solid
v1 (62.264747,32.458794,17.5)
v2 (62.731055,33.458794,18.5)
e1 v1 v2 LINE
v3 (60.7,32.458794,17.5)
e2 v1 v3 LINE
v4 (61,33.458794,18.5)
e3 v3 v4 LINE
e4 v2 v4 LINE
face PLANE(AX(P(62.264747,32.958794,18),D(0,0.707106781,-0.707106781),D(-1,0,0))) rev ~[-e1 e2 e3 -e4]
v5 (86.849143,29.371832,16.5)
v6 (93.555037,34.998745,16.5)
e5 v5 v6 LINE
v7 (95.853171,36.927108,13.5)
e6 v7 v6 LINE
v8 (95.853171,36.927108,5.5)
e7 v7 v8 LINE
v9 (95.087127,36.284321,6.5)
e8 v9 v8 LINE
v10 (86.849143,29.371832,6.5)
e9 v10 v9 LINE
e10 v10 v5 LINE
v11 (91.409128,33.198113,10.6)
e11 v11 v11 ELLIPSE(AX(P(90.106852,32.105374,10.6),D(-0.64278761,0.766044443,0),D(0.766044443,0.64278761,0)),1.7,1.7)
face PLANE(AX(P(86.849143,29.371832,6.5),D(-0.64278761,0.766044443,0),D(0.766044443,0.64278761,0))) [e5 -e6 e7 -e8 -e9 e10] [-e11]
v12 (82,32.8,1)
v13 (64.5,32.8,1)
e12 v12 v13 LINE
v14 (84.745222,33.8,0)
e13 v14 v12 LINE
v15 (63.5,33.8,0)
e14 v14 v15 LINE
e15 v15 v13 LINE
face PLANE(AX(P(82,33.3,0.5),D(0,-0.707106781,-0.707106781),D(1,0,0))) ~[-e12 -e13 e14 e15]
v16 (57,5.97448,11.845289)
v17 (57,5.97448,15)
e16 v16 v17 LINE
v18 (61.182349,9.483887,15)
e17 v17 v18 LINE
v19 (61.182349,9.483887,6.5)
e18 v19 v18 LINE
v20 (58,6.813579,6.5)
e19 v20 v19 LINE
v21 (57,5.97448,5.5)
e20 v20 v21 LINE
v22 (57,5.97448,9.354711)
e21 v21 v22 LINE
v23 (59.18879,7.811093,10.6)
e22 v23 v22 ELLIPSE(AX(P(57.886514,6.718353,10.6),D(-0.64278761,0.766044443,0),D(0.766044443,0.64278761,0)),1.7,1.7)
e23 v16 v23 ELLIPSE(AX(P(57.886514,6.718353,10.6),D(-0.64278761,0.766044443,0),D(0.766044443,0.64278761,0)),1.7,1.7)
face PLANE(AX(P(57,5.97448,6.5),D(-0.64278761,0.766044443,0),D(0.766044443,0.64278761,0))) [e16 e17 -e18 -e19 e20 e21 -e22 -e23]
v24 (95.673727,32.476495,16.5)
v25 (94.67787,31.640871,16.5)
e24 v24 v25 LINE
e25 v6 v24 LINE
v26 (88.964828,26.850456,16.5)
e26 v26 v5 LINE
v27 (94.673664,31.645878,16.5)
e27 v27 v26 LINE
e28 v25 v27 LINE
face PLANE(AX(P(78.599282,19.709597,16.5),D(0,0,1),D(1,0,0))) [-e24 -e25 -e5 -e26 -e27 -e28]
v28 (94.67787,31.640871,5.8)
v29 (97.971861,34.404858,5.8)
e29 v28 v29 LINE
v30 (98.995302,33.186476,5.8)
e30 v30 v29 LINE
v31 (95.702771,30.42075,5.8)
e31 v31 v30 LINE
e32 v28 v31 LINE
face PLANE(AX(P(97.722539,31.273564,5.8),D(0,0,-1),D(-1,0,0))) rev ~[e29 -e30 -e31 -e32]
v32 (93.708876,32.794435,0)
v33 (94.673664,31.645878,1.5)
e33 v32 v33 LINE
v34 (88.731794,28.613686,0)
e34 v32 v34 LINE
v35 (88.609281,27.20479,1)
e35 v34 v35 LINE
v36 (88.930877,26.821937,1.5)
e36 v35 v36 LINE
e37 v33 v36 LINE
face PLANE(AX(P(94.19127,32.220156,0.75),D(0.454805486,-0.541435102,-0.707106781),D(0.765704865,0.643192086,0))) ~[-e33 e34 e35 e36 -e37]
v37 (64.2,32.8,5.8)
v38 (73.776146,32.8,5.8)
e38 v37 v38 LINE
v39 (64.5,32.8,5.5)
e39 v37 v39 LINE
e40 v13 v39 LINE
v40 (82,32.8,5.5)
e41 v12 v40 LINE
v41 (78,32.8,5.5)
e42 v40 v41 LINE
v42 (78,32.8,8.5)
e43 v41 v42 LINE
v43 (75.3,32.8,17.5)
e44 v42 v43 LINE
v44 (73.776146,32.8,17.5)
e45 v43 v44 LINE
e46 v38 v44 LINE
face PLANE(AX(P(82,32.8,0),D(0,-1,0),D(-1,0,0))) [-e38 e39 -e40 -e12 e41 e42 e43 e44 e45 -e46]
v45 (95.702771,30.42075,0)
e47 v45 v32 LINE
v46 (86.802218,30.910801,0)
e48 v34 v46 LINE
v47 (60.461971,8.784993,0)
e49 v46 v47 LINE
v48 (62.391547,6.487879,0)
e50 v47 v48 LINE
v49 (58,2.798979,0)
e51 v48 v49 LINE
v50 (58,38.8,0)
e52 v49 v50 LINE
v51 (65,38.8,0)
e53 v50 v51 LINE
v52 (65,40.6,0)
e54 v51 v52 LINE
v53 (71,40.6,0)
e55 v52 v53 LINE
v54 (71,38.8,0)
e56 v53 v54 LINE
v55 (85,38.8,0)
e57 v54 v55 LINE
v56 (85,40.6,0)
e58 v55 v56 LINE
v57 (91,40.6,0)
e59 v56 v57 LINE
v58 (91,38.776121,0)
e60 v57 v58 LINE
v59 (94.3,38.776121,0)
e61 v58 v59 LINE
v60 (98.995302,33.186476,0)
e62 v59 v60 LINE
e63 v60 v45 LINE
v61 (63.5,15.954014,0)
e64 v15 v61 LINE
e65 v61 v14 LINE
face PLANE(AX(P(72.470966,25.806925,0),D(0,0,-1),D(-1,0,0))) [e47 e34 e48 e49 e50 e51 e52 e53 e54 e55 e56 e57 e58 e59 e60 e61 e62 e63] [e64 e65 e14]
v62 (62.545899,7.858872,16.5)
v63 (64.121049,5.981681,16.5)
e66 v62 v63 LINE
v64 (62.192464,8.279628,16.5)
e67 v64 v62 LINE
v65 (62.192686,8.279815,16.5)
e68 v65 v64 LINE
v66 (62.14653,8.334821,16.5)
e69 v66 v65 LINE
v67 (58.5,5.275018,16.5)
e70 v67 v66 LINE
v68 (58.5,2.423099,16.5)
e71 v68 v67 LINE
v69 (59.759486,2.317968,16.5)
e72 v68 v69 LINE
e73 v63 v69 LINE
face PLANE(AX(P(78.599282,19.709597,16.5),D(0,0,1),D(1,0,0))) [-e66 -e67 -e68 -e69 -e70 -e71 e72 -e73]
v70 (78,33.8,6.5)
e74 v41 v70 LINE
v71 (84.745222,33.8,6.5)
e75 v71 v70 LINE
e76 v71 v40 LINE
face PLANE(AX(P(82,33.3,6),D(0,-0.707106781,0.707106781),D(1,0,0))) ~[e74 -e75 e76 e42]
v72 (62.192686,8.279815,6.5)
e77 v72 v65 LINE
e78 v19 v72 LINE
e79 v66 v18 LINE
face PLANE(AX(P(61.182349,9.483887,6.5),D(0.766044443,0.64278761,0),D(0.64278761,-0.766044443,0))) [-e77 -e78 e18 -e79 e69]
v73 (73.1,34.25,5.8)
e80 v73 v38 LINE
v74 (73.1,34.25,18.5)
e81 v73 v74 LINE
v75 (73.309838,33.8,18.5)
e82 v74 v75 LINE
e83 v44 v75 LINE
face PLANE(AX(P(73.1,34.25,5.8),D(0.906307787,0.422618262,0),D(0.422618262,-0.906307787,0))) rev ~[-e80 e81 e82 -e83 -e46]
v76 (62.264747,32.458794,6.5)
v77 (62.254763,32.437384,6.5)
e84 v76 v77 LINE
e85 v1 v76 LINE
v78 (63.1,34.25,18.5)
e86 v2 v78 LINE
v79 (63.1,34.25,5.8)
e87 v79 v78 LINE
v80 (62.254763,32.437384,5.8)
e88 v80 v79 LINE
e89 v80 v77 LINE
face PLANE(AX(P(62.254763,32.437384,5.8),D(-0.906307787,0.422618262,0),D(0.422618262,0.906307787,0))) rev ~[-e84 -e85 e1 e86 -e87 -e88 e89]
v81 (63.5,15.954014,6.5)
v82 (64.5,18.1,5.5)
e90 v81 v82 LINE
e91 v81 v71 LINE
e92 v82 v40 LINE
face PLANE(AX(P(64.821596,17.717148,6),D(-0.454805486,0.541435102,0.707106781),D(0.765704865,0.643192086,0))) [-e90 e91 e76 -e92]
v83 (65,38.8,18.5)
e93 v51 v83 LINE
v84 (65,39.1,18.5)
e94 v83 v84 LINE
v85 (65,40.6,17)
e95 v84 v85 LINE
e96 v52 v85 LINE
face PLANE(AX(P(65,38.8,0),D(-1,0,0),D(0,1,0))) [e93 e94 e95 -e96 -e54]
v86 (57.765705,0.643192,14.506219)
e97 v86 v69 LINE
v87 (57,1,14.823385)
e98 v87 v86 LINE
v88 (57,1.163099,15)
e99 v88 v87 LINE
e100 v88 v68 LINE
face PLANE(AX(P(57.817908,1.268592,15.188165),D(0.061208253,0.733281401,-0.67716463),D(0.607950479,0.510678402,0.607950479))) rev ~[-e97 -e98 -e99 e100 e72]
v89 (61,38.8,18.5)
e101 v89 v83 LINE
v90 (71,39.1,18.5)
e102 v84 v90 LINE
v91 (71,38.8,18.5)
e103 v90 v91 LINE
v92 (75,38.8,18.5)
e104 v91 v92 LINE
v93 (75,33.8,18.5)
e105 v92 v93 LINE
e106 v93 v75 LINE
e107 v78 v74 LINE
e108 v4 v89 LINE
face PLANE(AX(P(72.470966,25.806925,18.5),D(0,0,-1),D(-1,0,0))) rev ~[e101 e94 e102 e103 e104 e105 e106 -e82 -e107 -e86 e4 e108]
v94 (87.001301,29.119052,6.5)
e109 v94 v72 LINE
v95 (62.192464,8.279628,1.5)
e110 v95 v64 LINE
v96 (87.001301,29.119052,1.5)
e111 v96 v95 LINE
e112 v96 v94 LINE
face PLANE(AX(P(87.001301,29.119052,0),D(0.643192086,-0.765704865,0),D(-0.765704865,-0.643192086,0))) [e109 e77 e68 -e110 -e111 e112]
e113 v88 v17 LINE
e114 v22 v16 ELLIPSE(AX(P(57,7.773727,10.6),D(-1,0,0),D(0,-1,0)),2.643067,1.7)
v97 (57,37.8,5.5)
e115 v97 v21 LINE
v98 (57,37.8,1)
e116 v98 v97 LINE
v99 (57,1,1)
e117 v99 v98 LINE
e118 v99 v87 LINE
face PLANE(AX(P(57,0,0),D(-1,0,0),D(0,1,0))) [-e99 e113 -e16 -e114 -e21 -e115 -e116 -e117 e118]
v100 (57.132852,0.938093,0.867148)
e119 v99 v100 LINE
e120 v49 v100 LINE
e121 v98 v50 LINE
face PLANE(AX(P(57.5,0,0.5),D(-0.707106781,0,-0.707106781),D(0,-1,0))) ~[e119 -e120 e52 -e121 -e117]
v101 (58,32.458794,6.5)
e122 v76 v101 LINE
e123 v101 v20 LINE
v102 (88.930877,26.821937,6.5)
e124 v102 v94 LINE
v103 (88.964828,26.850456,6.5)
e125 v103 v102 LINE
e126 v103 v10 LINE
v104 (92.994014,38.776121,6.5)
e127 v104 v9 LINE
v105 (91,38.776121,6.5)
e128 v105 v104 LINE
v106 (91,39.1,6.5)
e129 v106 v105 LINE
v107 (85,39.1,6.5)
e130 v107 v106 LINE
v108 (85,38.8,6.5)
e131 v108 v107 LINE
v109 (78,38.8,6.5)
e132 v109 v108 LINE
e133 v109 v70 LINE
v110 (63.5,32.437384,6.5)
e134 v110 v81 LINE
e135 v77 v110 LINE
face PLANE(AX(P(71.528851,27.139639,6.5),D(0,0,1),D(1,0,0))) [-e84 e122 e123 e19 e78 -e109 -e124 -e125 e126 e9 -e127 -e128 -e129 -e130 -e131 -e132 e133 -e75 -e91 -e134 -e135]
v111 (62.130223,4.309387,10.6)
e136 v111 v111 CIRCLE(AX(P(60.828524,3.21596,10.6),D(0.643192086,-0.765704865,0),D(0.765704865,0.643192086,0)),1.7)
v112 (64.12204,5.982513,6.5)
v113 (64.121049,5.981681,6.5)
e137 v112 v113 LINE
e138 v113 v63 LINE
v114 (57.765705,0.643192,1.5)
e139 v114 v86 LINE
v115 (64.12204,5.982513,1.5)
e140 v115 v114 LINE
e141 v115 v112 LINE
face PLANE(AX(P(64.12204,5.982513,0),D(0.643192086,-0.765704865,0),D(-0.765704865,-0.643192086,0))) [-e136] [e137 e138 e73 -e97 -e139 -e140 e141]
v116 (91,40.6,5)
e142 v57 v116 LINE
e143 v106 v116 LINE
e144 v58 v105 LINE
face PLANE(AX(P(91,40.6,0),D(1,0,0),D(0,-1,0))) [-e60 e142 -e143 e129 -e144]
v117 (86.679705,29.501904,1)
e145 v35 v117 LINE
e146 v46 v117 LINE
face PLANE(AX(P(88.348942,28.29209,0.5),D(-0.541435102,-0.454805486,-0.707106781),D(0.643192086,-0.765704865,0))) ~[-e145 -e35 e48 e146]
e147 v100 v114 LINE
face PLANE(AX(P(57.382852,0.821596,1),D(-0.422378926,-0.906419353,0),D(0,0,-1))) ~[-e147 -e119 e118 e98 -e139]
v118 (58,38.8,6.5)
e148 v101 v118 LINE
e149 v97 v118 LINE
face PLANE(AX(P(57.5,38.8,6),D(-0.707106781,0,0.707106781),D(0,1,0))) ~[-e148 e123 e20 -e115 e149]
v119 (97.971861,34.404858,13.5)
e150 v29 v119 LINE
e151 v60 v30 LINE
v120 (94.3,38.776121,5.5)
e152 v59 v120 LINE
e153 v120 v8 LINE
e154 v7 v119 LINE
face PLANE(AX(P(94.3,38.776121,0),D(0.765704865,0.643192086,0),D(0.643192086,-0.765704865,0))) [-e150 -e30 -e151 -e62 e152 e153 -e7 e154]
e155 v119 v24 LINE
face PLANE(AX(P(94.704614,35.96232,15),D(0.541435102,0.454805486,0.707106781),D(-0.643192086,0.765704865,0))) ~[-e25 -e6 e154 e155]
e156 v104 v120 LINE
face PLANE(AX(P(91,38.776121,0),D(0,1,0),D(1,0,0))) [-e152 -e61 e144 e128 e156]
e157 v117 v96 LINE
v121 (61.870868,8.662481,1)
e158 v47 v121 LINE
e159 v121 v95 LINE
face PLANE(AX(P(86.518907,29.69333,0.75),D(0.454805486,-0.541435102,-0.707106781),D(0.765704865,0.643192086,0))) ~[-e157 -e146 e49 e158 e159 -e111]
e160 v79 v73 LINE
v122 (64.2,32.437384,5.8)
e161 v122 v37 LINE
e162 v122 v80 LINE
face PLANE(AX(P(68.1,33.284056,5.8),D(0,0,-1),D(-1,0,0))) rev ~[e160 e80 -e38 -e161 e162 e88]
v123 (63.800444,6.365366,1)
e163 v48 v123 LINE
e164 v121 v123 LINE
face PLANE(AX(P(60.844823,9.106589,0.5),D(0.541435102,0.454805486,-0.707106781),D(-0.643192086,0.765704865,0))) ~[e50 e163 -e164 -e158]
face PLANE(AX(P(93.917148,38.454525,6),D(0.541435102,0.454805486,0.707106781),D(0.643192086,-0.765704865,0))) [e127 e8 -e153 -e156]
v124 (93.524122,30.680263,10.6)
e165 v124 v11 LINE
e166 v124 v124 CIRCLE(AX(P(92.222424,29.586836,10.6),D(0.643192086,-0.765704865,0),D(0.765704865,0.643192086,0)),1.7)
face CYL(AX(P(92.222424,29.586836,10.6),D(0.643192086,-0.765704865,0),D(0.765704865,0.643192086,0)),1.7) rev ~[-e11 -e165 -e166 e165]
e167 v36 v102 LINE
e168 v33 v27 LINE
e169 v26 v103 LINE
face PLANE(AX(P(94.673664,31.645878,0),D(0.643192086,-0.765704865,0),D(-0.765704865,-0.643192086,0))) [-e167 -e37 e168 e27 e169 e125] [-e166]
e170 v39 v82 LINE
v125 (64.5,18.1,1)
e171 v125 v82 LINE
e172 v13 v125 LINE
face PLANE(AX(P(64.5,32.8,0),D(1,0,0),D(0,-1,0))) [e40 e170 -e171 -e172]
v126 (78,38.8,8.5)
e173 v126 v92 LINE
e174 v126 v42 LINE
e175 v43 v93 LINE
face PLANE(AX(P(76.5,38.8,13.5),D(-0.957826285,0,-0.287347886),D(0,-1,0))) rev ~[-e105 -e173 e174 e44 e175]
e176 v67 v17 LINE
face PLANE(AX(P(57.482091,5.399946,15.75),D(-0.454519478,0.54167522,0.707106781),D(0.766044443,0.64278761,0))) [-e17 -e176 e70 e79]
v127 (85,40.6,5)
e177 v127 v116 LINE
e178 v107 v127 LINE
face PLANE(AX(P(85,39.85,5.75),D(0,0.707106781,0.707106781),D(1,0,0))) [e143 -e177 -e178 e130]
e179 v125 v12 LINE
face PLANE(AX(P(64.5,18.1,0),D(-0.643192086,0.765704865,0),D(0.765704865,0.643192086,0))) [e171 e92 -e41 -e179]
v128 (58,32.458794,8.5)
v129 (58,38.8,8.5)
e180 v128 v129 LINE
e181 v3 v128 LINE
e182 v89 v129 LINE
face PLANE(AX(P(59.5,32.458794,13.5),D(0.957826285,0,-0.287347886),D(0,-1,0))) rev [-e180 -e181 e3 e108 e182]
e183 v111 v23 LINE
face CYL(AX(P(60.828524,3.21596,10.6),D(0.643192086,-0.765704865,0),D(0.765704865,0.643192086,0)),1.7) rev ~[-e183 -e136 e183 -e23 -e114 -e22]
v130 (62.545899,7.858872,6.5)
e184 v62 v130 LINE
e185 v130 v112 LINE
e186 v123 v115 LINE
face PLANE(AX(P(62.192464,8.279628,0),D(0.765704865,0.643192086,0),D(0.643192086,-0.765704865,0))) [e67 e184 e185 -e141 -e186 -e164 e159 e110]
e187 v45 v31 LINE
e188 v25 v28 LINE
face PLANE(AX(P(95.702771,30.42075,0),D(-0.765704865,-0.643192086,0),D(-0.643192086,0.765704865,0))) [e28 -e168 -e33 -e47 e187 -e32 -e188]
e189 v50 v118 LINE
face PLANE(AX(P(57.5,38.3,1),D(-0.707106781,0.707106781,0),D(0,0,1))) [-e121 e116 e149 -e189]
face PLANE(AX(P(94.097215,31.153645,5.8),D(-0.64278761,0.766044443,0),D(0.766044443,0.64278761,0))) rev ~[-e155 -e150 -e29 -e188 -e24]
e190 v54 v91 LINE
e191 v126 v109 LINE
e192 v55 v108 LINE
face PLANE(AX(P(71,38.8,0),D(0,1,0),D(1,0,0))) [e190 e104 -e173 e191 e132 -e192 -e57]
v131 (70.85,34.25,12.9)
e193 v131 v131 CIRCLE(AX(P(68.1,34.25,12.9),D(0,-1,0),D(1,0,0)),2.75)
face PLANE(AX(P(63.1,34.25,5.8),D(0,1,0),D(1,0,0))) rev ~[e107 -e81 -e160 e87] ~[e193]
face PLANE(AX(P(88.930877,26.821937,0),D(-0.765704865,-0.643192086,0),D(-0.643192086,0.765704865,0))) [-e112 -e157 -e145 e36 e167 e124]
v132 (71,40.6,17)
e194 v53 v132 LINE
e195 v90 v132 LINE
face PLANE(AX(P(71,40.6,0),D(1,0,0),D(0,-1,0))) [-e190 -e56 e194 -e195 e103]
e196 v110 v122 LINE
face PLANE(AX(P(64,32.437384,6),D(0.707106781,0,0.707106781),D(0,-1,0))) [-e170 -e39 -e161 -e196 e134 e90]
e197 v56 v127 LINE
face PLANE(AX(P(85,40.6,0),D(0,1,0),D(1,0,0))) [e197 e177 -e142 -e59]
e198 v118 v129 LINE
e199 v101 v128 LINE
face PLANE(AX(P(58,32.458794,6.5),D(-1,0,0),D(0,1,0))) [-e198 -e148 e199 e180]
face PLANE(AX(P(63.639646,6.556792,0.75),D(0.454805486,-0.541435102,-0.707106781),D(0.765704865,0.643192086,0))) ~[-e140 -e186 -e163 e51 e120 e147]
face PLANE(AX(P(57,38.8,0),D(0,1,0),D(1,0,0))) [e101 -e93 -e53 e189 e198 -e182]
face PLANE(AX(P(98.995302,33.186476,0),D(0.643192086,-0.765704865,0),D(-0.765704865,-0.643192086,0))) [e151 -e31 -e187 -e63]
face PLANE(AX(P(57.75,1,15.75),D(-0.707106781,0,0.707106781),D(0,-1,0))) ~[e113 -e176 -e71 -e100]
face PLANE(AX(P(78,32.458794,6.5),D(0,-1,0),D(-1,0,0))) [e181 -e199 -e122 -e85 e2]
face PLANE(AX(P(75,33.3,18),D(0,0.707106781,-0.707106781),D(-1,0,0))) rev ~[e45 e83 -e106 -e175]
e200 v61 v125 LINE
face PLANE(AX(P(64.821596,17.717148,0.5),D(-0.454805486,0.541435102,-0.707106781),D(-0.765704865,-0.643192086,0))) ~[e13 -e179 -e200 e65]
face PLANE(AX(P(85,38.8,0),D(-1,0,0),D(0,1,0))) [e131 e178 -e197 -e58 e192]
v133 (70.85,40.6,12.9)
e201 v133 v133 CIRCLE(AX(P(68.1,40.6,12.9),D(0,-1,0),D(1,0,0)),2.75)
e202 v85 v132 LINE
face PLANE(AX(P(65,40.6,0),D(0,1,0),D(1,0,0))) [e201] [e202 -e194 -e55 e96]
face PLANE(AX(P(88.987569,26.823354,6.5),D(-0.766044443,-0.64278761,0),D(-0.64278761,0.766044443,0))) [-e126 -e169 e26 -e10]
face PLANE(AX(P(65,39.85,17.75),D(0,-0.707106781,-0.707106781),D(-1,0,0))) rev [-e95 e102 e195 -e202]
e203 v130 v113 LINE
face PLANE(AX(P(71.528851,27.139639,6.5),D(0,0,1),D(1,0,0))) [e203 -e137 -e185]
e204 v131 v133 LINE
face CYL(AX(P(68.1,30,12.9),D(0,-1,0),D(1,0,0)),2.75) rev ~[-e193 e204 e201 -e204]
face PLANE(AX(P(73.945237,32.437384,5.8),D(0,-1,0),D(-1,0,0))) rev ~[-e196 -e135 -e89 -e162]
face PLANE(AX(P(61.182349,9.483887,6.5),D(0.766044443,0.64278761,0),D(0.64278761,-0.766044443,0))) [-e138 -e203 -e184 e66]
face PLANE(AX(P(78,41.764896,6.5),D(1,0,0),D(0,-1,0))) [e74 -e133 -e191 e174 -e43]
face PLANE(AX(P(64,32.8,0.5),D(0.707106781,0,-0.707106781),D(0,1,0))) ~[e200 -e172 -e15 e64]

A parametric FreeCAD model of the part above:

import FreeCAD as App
import Part
import Sketcher
Q = App.Units.Quantity


def edges_at(feature, points):
    """Names of the edges that pass closest to the given points."""
    edges = feature.Shape.Edges
    near = lambda p: min(range(len(edges)), key=lambda i: edges[i].distToShape(Part.Vertex(*p))[0])
    return sorted({f"Edge{near(p) + 1}" for p in points})

doc = App.newDocument("Part")
body = doc.addObject("PartDesign::Body", "Body")

# Sketch on XY plane
sketch1 = doc.addObject("Sketcher::SketchObject", "Sketch")
body.addObject(sketch1)
sketch1.AttachmentSupport = (doc.XY_Plane, [""])
sketch1.MapMode = "FlatFace"
sketch1.addGeometry(Part.LineSegment(App.Vector(8, 38.8, 0), App.Vector(0, 38.8, 0)), False)
sketch1.addGeometry(Part.LineSegment(App.Vector(0, 38.8, 0), App.Vector(0, 0, 0)), False)
sketch1.addGeometry(Part.LineSegment(App.Vector(0, 0, 0), App.Vector(7.1, 6, 0)), False)
sketch1.addGeometry(Part.LineSegment(App.Vector(7.1, 6, 0), App.Vector(5.2, 8.3, 0)), False)
sketch1.addGeometry(Part.LineSegment(App.Vector(5.2, 8.3, 0), App.Vector(30, 29.1, 0)), False)
sketch1.addGeometry(Part.LineSegment(App.Vector(30, 29.1, 0), App.Vector(31.9, 26.8, 0)), False)
sketch1.addGeometry(Part.LineSegment(App.Vector(31.9, 26.8, 0), App.Vector(37.7, 31.6, 0)), False)
sketch1.addGeometry(Part.LineSegment(App.Vector(37.7, 31.6, 0), App.Vector(38.7, 30.4, 0)), False)
sketch1.addGeometry(Part.LineSegment(App.Vector(38.7, 30.4, 0), App.Vector(42, 33.2, 0)), False)
sketch1.addGeometry(Part.LineSegment(App.Vector(42, 33.2, 0), App.Vector(37.3, 38.8, 0)), False)
sketch1.addGeometry(Part.LineSegment(App.Vector(37.3, 38.8, 0), App.Vector(34, 38.8, 0)), False)
sketch1.addGeometry(Part.LineSegment(App.Vector(34, 38.8, 0), App.Vector(34, 40.6, 0)), False)
sketch1.addGeometry(Part.LineSegment(App.Vector(34, 40.6, 0), App.Vector(28, 40.6, 0)), False)
sketch1.addGeometry(Part.LineSegment(App.Vector(28, 40.6, 0), App.Vector(28, 38.8, 0)), False)
sketch1.addGeometry(Part.LineSegment(App.Vector(28, 38.8, 0), App.Vector(14, 38.8, 0)), False)
sketch1.addGeometry(Part.LineSegment(App.Vector(14, 38.8, 0), App.Vector(14, 40.6, 0)), False)
sketch1.addGeometry(Part.LineSegment(App.Vector(14, 40.6, 0), App.Vector(8, 40.6, 0)), False)
sketch1.addGeometry(Part.LineSegment(App.Vector(8, 40.6, 0), App.Vector(8, 38.8, 0)), False)
sketch1.addGeometry(Part.LineSegment(App.Vector(7.5, 32.8, 0), App.Vector(25, 32.8, 0)), False)
sketch1.addGeometry(Part.LineSegment(App.Vector(25, 32.8, 0), App.Vector(7.5, 18.1, 0)), False)
sketch1.addGeometry(Part.LineSegment(App.Vector(7.5, 18.1, 0), App.Vector(7.5, 32.8, 0)), False)
sketch1.addConstraint(Sketcher.Constraint("Coincident", 0, 2, 1, 1))
sketch1.addConstraint(Sketcher.Constraint("Coincident", 1, 2, 2, 1))
sketch1.addConstraint(Sketcher.Constraint("Coincident", 2, 2, 3, 1))
sketch1.addConstraint(Sketcher.Constraint("Coincident", 3, 2, 4, 1))
sketch1.addConstraint(Sketcher.Constraint("Coincident", 4, 2, 5, 1))
sketch1.addConstraint(Sketcher.Constraint("Coincident", 5, 2, 6, 1))
sketch1.addConstraint(Sketcher.Constraint("Coincident", 6, 2, 7, 1))
sketch1.addConstraint(Sketcher.Constraint("Coincident", 7, 2, 8, 1))
sketch1.addConstraint(Sketcher.Constraint("Coincident", 8, 2, 9, 1))
sketch1.addConstraint(Sketcher.Constraint("Coincident", 9, 2, 10, 1))
sketch1.addConstraint(Sketcher.Constraint("Coincident", 10, 2, 11, 1))
sketch1.addConstraint(Sketcher.Constraint("Coincident", 11, 2, 12, 1))
sketch1.addConstraint(Sketcher.Constraint("Coincident", 12, 2, 13, 1))
sketch1.addConstraint(Sketcher.Constraint("Coincident", 13, 2, 14, 1))
sketch1.addConstraint(Sketcher.Constraint("Coincident", 14, 2, 15, 1))
sketch1.addConstraint(Sketcher.Constraint("Coincident", 15, 2, 16, 1))
sketch1.addConstraint(Sketcher.Constraint("Coincident", 16, 2, 17, 1))
sketch1.addConstraint(Sketcher.Constraint("Coincident", 17, 2, 0, 1))
sketch1.addConstraint(Sketcher.Constraint("Coincident", 18, 2, 19, 1))
sketch1.addConstraint(Sketcher.Constraint("Coincident", 19, 2, 20, 1))
sketch1.addConstraint(Sketcher.Constraint("Coincident", 20, 2, 18, 1))
sketch1.addConstraint(Sketcher.Constraint("Horizontal", 0))
sketch1.addConstraint(Sketcher.Constraint("Vertical", 1))
sketch1.addConstraint(Sketcher.Constraint("Horizontal", 10))
sketch1.addConstraint(Sketcher.Constraint("Vertical", 11))
sketch1.addConstraint(Sketcher.Constraint("Horizontal", 12))
sketch1.addConstraint(Sketcher.Constraint("Vertical", 13))
sketch1.addConstraint(Sketcher.Constraint("Horizontal", 14))
sketch1.addConstraint(Sketcher.Constraint("Vertical", 15))
sketch1.addConstraint(Sketcher.Constraint("Horizontal", 16))
sketch1.addConstraint(Sketcher.Constraint("Vertical", 17))
sketch1.addConstraint(Sketcher.Constraint("Horizontal", 18))
sketch1.addConstraint(Sketcher.Constraint("Vertical", 20))
sketch1.addConstraint(Sketcher.Constraint("Coincident", 1, 2, -1, 1))
sketch1.addConstraint(Sketcher.Constraint("Perpendicular", 2, 3))
sketch1.addConstraint(Sketcher.Constraint("Perpendicular", 3, 4))
sketch1.addConstraint(Sketcher.Constraint("Perpendicular", 4, 5))
sketch1.addConstraint(Sketcher.Constraint("Perpendicular", 5, 6))
sketch1.addConstraint(Sketcher.Constraint("Perpendicular", 6, 7))
sketch1.addConstraint(Sketcher.Constraint("Perpendicular", 7, 8))
sketch1.addConstraint(Sketcher.Constraint("Perpendicular", 8, 9))
sketch1.addConstraint(Sketcher.Constraint("Perpendicular", 9, 19))
sketch1.addConstraint(Sketcher.Constraint("Horizontal", 0, 2, 13, 2))
sketch1.addConstraint(Sketcher.Constraint("Horizontal", 12, 2, 15, 2))
sketch1.addConstraint(Sketcher.Constraint("Equal", 12, 16))
sketch1.addConstraint(Sketcher.Constraint("Equal", 3, 5))
sketch1.addConstraint(Sketcher.Constraint("DistanceX", 0, 2, 0, 1, Q("8 mm")))
sketch1.addConstraint(Sketcher.Constraint("DistanceX", 12, 2, 12, 1, Q("6 mm")))
sketch1.addConstraint(Sketcher.Constraint("DistanceX", 14, 2, 14, 1, Q("14 mm")))
sketch1.addConstraint(Sketcher.Constraint("Distance", 3, Q("3 mm")))
sketch1.addConstraint(Sketcher.Constraint("DistanceX", 10, 2, 10, 1, Q("3.3 mm")))
sketch1.addConstraint(Sketcher.Constraint("DistanceX", 18, 1, 18, 2, Q("17.5 mm")))
sketch1.addConstraint(Sketcher.Constraint("DistanceY", 1, 2, 1, 1, Q("38.8 mm")))
sketch1.addConstraint(Sketcher.Constraint("DistanceY", 13, 2, 13, 1, Q("1.8 mm")))
sketch1.addConstraint(Sketcher.Constraint("DistanceY", 20, 1, 20, 2, Q("14.7 mm")))
sketch1.addConstraint(Sketcher.Constraint("DistanceX", -1, 1, 18, 2, Q("25 mm")))
sketch1.addConstraint(Sketcher.Constraint("DistanceY", 18, 2, 13, 2, Q("6 mm")))
sketch1.addConstraint(Sketcher.Constraint("Distance", 4, Q("32.4 mm")))
sketch1.addConstraint(Sketcher.Constraint("Distance", 6, Q("7.5 mm")))
sketch1.addConstraint(Sketcher.Constraint("Distance", 7, Q("1.6 mm")))
sketch1.addConstraint(Sketcher.Constraint("Distance", 8, Q("4.3 mm")))
sketch1.addConstraint(Sketcher.Constraint("Distance", 9, Q("7.3 mm")))
pad1 = doc.addObject("PartDesign::Pad", "Pad")
body.addObject(pad1)
pad1.Profile = sketch1
pad1.Length = 18.5

# Sketch on XY plane
sketch2 = doc.addObject("Sketcher::SketchObject", "Sketch001")
body.addObject(sketch2)
sketch2.AttachmentSupport = (doc.XY_Plane, [""])
sketch2.MapMode = "FlatFace"
sketch2.AttachmentOffset = App.Placement(App.Vector(0, 0, 6.5), App.Rotation())
sketch2.addGeometry(Part.LineSegment(App.Vector(0, 6, 0), App.Vector(4.2, 9.5, 0)), False)
sketch2.addGeometry(Part.LineSegment(App.Vector(4.2, 9.5, 0), App.Vector(7.1, 6, 0)), False)
sketch2.addGeometry(Part.LineSegment(App.Vector(7.1, 6, 0), App.Vector(32, 26.8, 0)), False)
sketch2.addGeometry(Part.LineSegment(App.Vector(32, 26.8, 0), App.Vector(29.8, 29.4, 0)), False)
sketch2.addGeometry(Part.LineSegment(App.Vector(29.8, 29.4, 0), App.Vector(38.9, 37, 0)), False)
sketch2.addGeometry(Part.LineSegment(App.Vector(38.9, 37, 0), App.Vector(34.9, 41.8, 0)), False)
sketch2.addGeometry(Part.LineSegment(App.Vector(34.9, 41.8, 0), App.Vector(21, 41.8, 0)), False)
sketch2.addGeometry(Part.LineSegment(App.Vector(21, 41.8, 0), App.Vector(21, 32.5, 0)), False)
sketch2.addGeometry(Part.LineSegment(App.Vector(21, 32.5, 0), App.Vector(1, 32.5, 0)), False)
sketch2.addGeometry(Part.LineSegment(App.Vector(1, 32.5, 0), App.Vector(1, 41.8, 0)), False)
sketch2.addGeometry(Part.LineSegment(App.Vector(1, 41.8, 0), App.Vector(0, 41.8, 0)), False)
sketch2.addGeometry(Part.LineSegment(App.Vector(0, 41.8, 0), App.Vector(0, 6, 0)), False)
sketch2.addConstraint(Sketcher.Constraint("Coincident", 0, 2, 1, 1))
sketch2.addConstraint(Sketcher.Constraint("Coincident", 1, 2, 2, 1))
sketch2.addConstraint(Sketcher.Constraint("Coincident", 2, 2, 3, 1))
sketch2.addConstraint(Sketcher.Constraint("Coincident", 3, 2, 4, 1))
sketch2.addConstraint(Sketcher.Constraint("Coincident", 4, 2, 5, 1))
sketch2.addConstraint(Sketcher.Constraint("Coincident", 5, 2, 6, 1))
sketch2.addConstraint(Sketcher.Constraint("Coincident", 6, 2, 7, 1))
sketch2.addConstraint(Sketcher.Constraint("Coincident", 7, 2, 8, 1))
sketch2.addConstraint(Sketcher.Constraint("Coincident", 8, 2, 9, 1))
sketch2.addConstraint(Sketcher.Constraint("Coincident", 9, 2, 10, 1))
sketch2.addConstraint(Sketcher.Constraint("Coincident", 10, 2, 11, 1))
sketch2.addConstraint(Sketcher.Constraint("Coincident", 11, 2, 0, 1))
sketch2.addConstraint(Sketcher.Constraint("Horizontal", 6))
sketch2.addConstraint(Sketcher.Constraint("Vertical", 7))
sketch2.addConstraint(Sketcher.Constraint("Horizontal", 8))
sketch2.addConstraint(Sketcher.Constraint("Vertical", 9))
sketch2.addConstraint(Sketcher.Constraint("Vertical", 11))
sketch2.addConstraint(Sketcher.Constraint("PointOnObject", 10, 2, -2))
sketch2.addConstraint(Sketcher.Constraint("Perpendicular", 0, 1))
sketch2.addConstraint(Sketcher.Constraint("Perpendicular", 1, 2))
sketch2.addConstraint(Sketcher.Constraint("Perpendicular", 2, 3))
sketch2.addConstraint(Sketcher.Constraint("Perpendicular", 3, 4))
sketch2.addConstraint(Sketcher.Constraint("Perpendicular", 4, 5))
sketch2.addConstraint(Sketcher.Constraint("Horizontal", 6, 2, 10, 2))
sketch2.addConstraint(Sketcher.Constraint("DistanceX", 8, 2, 8, 1, Q("20 mm")))
sketch2.addConstraint(Sketcher.Constraint("Angle", 0, Q("40 deg")))
sketch2.addConstraint(Sketcher.Constraint("DistanceX", -1, 1, 6, 2, Q("21 mm")))
sketch2.addConstraint(Sketcher.Constraint("DistanceY", 7, 2, 7, 1, Q("9.306102 mm")))
sketch2.addConstraint(Sketcher.Constraint("Distance", 3, Q("3.326801 mm")))
sketch2.addConstraint(Sketcher.Constraint("DistanceX", 1, 2, 5, 2, Q("27.758201 mm")))
sketch2.addConstraint(Sketcher.Constraint("Distance", 0, Q("5.459669 mm")))
sketch2.addConstraint(Sketcher.Constraint("Distance", 1, Q("4.590048 mm")))
sketch2.addConstraint(Sketcher.Constraint("Distance", 2, Q("32.445629 mm")))
sketch2.addConstraint(Sketcher.Constraint("Distance", 5, Q("6.25281 mm")))
sketch2.addConstraint(Sketcher.Constraint("DistanceY", 9, 1, 9, 2, Q("9.300464 mm")))
sketch2.addConstraint(Sketcher.Constraint("DistanceY", -1, 1, 3, 2, Q("29.371832 mm")))
pocket1 = doc.addObject("PartDesign::Pocket", "Pocket")
body.addObject(pocket1)
pocket1.Profile = sketch2
pocket1.Length = 13
pocket1.Reversed = True

# Sketch on XY plane
sketch3 = doc.addObject("Sketcher::SketchObject", "Sketch002")
body.addObject(sketch3)
sketch3.AttachmentSupport = (doc.XY_Plane, [""])
sketch3.MapMode = "FlatFace"
sketch3.AttachmentOffset = App.Placement(App.Vector(0, 0, 16.5), App.Rotation())
sketch3.addGeometry(Part.LineSegment(App.Vector(-1, -4, 0), App.Vector(49, 38, 0)), False)
sketch3.addGeometry(Part.LineSegment(App.Vector(49, 38, 0), App.Vector(44, 44, 0)), False)
sketch3.addGeometry(Part.LineSegment(App.Vector(44, 44, 0), App.Vector(-6, 2, 0)), False)
sketch3.addGeometry(Part.LineSegment(App.Vector(-6, 2, 0), App.Vector(-1, -4, 0)), False)
sketch3.addConstraint(Sketcher.Constraint("Coincident", 0, 2, 1, 1))
sketch3.addConstraint(Sketcher.Constraint("Coincident", 1, 2, 2, 1))
sketch3.addConstraint(Sketcher.Constraint("Coincident", 2, 2, 3, 1))
sketch3.addConstraint(Sketcher.Constraint("Coincident", 3, 2, 0, 1))
sketch3.addConstraint(Sketcher.Constraint("Perpendicular", 0, 1))
sketch3.addConstraint(Sketcher.Constraint("Perpendicular", 1, 2))
sketch3.addConstraint(Sketcher.Constraint("Perpendicular", 2, 3))
sketch3.addConstraint(Sketcher.Constraint("Angle", 0, Q("40 deg")))
sketch3.addConstraint(Sketcher.Constraint("Distance", 1, Q("8 mm")))
sketch3.addConstraint(Sketcher.Constraint("DistanceY", -1, 1, 0, 2, Q("37.6435 mm")))
sketch3.addConstraint(Sketcher.Constraint("Distance", 0, Q("65.33443 mm")))
sketch3.addConstraint(Sketcher.Constraint("DistanceX", -1, 1, 0, 2, Q("49.194971 mm")))
pocket2 = doc.addObject("PartDesign::Pocket", "Pocket001")
body.addObject(pocket2)
pocket2.Profile = sketch3
pocket2.Length = 5
pocket2.Reversed = True

# Sketch on XY plane
sketch4 = doc.addObject("Sketcher::SketchObject", "Sketch003")
body.addObject(sketch4)
sketch4.AttachmentSupport = (doc.XY_Plane, [""])
sketch4.MapMode = "FlatFace"
sketch4.AttachmentOffset = App.Placement(App.Vector(0, 0, 5.8), App.Rotation())
sketch4.addGeometry(Part.LineSegment(App.Vector(41.5, 34.8, 0), App.Vector(37.1, 31.2, 0)), False)
sketch4.addGeometry(Part.LineSegment(App.Vector(37.1, 31.2, 0), App.Vector(40, 27.7, 0)), False)
sketch4.addGeometry(Part.LineSegment(App.Vector(40, 27.7, 0), App.Vector(44.3, 31.4, 0)), False)
sketch4.addGeometry(Part.LineSegment(App.Vector(44.3, 31.4, 0), App.Vector(41.5, 34.8, 0)), False)
sketch4.addGeometry(Part.LineSegment(App.Vector(16.1, 34.2, 0), App.Vector(6.1, 34.2, 0)), False)
sketch4.addGeometry(Part.LineSegment(App.Vector(6.1, 34.2, 0), App.Vector(5.3, 32.4, 0)), False)
sketch4.addGeometry(Part.LineSegment(App.Vector(5.3, 32.4, 0), App.Vector(16.9, 32.4, 0)), False)
sketch4.addGeometry(Part.LineSegment(App.Vector(16.9, 32.4, 0), App.Vector(16.1, 34.2, 0)), False)
sketch4.addConstraint(Sketcher.Constraint("Coincident", 0, 2, 1, 1))
sketch4.addConstraint(Sketcher.Constraint("Coincident", 1, 2, 2, 1))
sketch4.addConstraint(Sketcher.Constraint("Coincident", 2, 2, 3, 1))
sketch4.addConstraint(Sketcher.Constraint("Coincident", 3, 2, 0, 1))
sketch4.addConstraint(Sketcher.Constraint("Coincident", 4, 2, 5, 1))
sketch4.addConstraint(Sketcher.Constraint("Coincident", 5, 2, 6, 1))
sketch4.addConstraint(Sketcher.Constraint("Coincident", 6, 2, 7, 1))
sketch4.addConstraint(Sketcher.Constraint("Coincident", 7, 2, 4, 1))
sketch4.addConstraint(Sketcher.Constraint("Horizontal", 4))
sketch4.addConstraint(Sketcher.Constraint("Horizontal", 6))
sketch4.addConstraint(Sketcher.Constraint("Perpendicular", 0, 1))
sketch4.addConstraint(Sketcher.Constraint("Perpendicular", 1, 2))
sketch4.addConstraint(Sketcher.Constraint("Perpendicular", 2, 3))
sketch4.addConstraint(Sketcher.Constraint("Equal", 5, 7))
sketch4.addConstraint(Sketcher.Constraint("DistanceX", 4, 2, 4, 1, Q("10 mm")))
sketch4.addConstraint(Sketcher.Constraint("Angle", 0, Q("-140 deg")))
sketch4.addConstraint(Sketcher.Constraint("Angle", 5, Q("-115 deg")))
sketch4.addConstraint(Sketcher.Constraint("Distance", 5, Q("2 mm")))
sketch4.addConstraint(Sketcher.Constraint("DistanceX", -1, 1, 4, 2, Q("6.1 mm")))
sketch4.addConstraint(Sketcher.Constraint("DistanceY", -1, 1, 4, 2, Q("34.25 mm")))
sketch4.addConstraint(Sketcher.Constraint("Distance", 1, Q("4.476899 mm")))
sketch4.addConstraint(Sketcher.Constraint("DistanceY", 5, 2, 3, 2, Q("2.385602 mm")))
sketch4.addConstraint(Sketcher.Constraint("DistanceX", 5, 2, 2, 2, Q("39.093099 mm")))
sketch4.addConstraint(Sketcher.Constraint("DistanceX", -1, 1, 1, 2, Q("39.974911 mm")))
pocket3 = doc.addObject("PartDesign::Pocket", "Pocket002")
body.addObject(pocket3)
pocket3.Profile = sketch4
pocket3.Length = 15
pocket3.Reversed = True

# Sketch on XZ plane
sketch5 = doc.addObject("Sketcher::SketchObject", "Sketch004")
body.addObject(sketch5)
sketch5.AttachmentSupport = (doc.XZ_Plane, [""])
sketch5.MapMode = "FlatFace"
sketch5.AttachmentOffset = App.Placement(App.Vector(0, 0, -30), App.Rotation())
sketch5.addGeometry(Part.Circle(App.Vector(11.1, 12.9, 0), App.Vector(0, 0, 1), 2.8), False)
sketch5.addConstraint(Sketcher.Constraint("Diameter", 0, Q("5.5 mm")))
sketch5.addConstraint(Sketcher.Constraint("DistanceX", -1, 1, 0, 3, Q("11.1 mm")))
sketch5.addConstraint(Sketcher.Constraint("DistanceY", -1, 1, 0, 3, Q("12.9 mm")))
pocket4 = doc.addObject("PartDesign::Pocket", "Pocket003")
body.addObject(pocket4)
pocket4.Profile = sketch5
pocket4.Length = 12

# Sketch on an angled plane
sketch6 = doc.addObject("Sketcher::SketchObject", "Sketch005")
body.addObject(sketch6)
sketch6.Placement = App.Placement(App.Vector(0, 0, 0), App.Rotation(App.Vector(0.765704865, 0.643192086, 0), App.Vector(0, 0, 1), App.Vector(0.643192086, -0.765704865, 0), "ZXY"))
sketch6.addGeometry(Part.Circle(App.Vector(5, 10.6, 0), App.Vector(0, 0, 1), 1.7), False)
sketch6.addGeometry(Part.Circle(App.Vector(46, 10.6, 0), App.Vector(0, 0, 1), 1.7), False)
sketch6.addConstraint(Sketcher.Constraint("Equal", 0, 1))
sketch6.addConstraint(Sketcher.Constraint("Horizontal", 0, 3, 1, 3))
sketch6.addConstraint(Sketcher.Constraint("Diameter", 0, Q("3.4 mm")))
sketch6.addConstraint(Sketcher.Constraint("DistanceX", -1, 1, 0, 3, Q("5 mm")))
sketch6.addConstraint(Sketcher.Constraint("DistanceX", -1, 1, 1, 3, Q("46 mm")))
sketch6.addConstraint(Sketcher.Constraint("DistanceY", -1, 1, 0, 3, Q("10.6 mm")))
pocket5 = doc.addObject("PartDesign::Pocket", "Pocket004")
body.addObject(pocket5)
pocket5.Profile = sketch6
pocket5.Length = 5
doc.recompute()

chamfer = doc.addObject("PartDesign::Chamfer", "Chamfer")
body.addObject(chamfer)
chamfer.Base = (pocket5, edges_at(pocket5, [(39.913, 35.666, 16.5)]))
chamfer.Size = 3
doc.recompute()

chamfer2 = doc.addObject("PartDesign::Chamfer", "Chamfer001")
body.addObject(chamfer2)
chamfer2.Base = (chamfer, edges_at(chamfer, [(21, 35.8, 18.5)]))
chamfer2.ChamferType = "Two distances"
chamfer2.Size = 10
chamfer2.Size2 = 3
doc.recompute()

chamfer3 = doc.addObject("PartDesign::Chamfer", "Chamfer002")
body.addObject(chamfer3)
chamfer3.Base = (chamfer2, edges_at(chamfer2, [(1, 35.629, 18.5)]))
chamfer3.ChamferType = "Two distances"
chamfer3.Size = 3
chamfer3.Size2 = 10
doc.recompute()

chamfer4 = doc.addObject("PartDesign::Chamfer", "Chamfer003")
body.addObject(chamfer4)
chamfer4.Base = (chamfer3, edges_at(chamfer3, [(16.25, 25.45, 6.5), (7.5, 25.269, 6.5), (23, 32.8, 6.5)]))
chamfer4.Size = 1
doc.recompute()

chamfer5 = doc.addObject("PartDesign::Chamfer", "Chamfer004")
body.addObject(chamfer5)
chamfer5.Base = (chamfer4, edges_at(chamfer4, [(17.388, 32.8, 18.5), (4.632, 32.459, 18.5)]))
chamfer5.Size = 1
doc.recompute()

chamfer6 = doc.addObject("PartDesign::Chamfer", "Chamfer005")
body.addObject(chamfer6)
chamfer6.Base = (chamfer5, edges_at(chamfer5, [(31, 40.6, 6.5), (11, 40.6, 18.5)]))
chamfer6.Size = 1.5
doc.recompute()

chamfer7 = doc.addObject("PartDesign::Chamfer", "Chamfer006")
body.addObject(chamfer7)
chamfer7.Base = (chamfer6, edges_at(chamfer6, [(38.077, 37.852, 6.5)]))
chamfer7.Size = 1
doc.recompute()

chamfer8 = doc.addObject("PartDesign::Chamfer", "Chamfer007")
body.addObject(chamfer8)
chamfer8.Base = (chamfer7, edges_at(chamfer7, [(0, 22.387, 6.5), (0, 19.4, 0)]))
chamfer8.Size = 1
doc.recompute()

chamfer9 = doc.addObject("PartDesign::Chamfer", "Chamfer008")
body.addObject(chamfer9)
chamfer9.Base = (chamfer8, edges_at(chamfer8, [(0, 38.8, 3.25)]))
chamfer9.Size = 1
doc.recompute()

chamfer10 = doc.addObject("PartDesign::Chamfer", "Chamfer009")
body.addObject(chamfer10)
chamfer10.Base = (chamfer9, edges_at(chamfer9, [(0, 0, 8.75)]))
chamfer10.Size = 1
doc.recompute()

chamfer11 = doc.addObject("PartDesign::Chamfer", "Chamfer010")
body.addObject(chamfer11)
chamfer11.Base = (chamfer10, edges_at(chamfer10, [(2.091, 7.729, 16.5), (0, 3.487, 16.5)]))
chamfer11.Size = 1.5
doc.recompute()

chamfer12 = doc.addObject("PartDesign::Chamfer", "Chamfer011")
body.addObject(chamfer12)
chamfer12.Base = (chamfer11, edges_at(chamfer11, [(1.133, 0.952, 16.133)]))
chamfer12.Size = 1
doc.recompute()

chamfer13 = doc.addObject("PartDesign::Chamfer", "Chamfer012")
body.addObject(chamfer13)
chamfer13.Base = (chamfer12, edges_at(chamfer12, [(16.25, 25.45, 0), (16.25, 32.8, 0), (7.5, 25.45, 0)]))
chamfer13.Size = 1
doc.recompute()

chamfer14 = doc.addObject("PartDesign::Chamfer", "Chamfer013")
body.addObject(chamfer14)
chamfer14.Base = (chamfer13, edges_at(chamfer13, [(4.061, 3.411, 0), (17.597, 18.699, 0), (34.802, 29.234, 0)]))
chamfer14.Size = 1.5
doc.recompute()

chamfer15 = doc.addObject("PartDesign::Chamfer", "Chamfer014")
body.addObject(chamfer15)
chamfer15.Base = (chamfer14, edges_at(chamfer14, [(30.001, 29.119, 0), (30.001, 29.119, 0)]))
chamfer15.Size = 1
doc.recompute()

chamfer16 = doc.addObject("PartDesign::Chamfer", "Chamfer015")
body.addObject(chamfer16)
chamfer16.Base = (chamfer15, edges_at(chamfer15, [(5.192, 8.28, 0)]))
chamfer16.Size = 1
body2 = doc.addObject("PartDesign::Body", "Body001")
doc.recompute()

body.Placement = App.Placement(App.Vector(57, 0, 0), App.Rotation(App.Vector(0, 0, 1), 0))
boolean = doc.addObject("PartDesign::Boolean", "Boolean")
body2.addObject(boolean)
boolean.Type = "Fuse"
boolean.addObjects([body])

doc.recompute()
